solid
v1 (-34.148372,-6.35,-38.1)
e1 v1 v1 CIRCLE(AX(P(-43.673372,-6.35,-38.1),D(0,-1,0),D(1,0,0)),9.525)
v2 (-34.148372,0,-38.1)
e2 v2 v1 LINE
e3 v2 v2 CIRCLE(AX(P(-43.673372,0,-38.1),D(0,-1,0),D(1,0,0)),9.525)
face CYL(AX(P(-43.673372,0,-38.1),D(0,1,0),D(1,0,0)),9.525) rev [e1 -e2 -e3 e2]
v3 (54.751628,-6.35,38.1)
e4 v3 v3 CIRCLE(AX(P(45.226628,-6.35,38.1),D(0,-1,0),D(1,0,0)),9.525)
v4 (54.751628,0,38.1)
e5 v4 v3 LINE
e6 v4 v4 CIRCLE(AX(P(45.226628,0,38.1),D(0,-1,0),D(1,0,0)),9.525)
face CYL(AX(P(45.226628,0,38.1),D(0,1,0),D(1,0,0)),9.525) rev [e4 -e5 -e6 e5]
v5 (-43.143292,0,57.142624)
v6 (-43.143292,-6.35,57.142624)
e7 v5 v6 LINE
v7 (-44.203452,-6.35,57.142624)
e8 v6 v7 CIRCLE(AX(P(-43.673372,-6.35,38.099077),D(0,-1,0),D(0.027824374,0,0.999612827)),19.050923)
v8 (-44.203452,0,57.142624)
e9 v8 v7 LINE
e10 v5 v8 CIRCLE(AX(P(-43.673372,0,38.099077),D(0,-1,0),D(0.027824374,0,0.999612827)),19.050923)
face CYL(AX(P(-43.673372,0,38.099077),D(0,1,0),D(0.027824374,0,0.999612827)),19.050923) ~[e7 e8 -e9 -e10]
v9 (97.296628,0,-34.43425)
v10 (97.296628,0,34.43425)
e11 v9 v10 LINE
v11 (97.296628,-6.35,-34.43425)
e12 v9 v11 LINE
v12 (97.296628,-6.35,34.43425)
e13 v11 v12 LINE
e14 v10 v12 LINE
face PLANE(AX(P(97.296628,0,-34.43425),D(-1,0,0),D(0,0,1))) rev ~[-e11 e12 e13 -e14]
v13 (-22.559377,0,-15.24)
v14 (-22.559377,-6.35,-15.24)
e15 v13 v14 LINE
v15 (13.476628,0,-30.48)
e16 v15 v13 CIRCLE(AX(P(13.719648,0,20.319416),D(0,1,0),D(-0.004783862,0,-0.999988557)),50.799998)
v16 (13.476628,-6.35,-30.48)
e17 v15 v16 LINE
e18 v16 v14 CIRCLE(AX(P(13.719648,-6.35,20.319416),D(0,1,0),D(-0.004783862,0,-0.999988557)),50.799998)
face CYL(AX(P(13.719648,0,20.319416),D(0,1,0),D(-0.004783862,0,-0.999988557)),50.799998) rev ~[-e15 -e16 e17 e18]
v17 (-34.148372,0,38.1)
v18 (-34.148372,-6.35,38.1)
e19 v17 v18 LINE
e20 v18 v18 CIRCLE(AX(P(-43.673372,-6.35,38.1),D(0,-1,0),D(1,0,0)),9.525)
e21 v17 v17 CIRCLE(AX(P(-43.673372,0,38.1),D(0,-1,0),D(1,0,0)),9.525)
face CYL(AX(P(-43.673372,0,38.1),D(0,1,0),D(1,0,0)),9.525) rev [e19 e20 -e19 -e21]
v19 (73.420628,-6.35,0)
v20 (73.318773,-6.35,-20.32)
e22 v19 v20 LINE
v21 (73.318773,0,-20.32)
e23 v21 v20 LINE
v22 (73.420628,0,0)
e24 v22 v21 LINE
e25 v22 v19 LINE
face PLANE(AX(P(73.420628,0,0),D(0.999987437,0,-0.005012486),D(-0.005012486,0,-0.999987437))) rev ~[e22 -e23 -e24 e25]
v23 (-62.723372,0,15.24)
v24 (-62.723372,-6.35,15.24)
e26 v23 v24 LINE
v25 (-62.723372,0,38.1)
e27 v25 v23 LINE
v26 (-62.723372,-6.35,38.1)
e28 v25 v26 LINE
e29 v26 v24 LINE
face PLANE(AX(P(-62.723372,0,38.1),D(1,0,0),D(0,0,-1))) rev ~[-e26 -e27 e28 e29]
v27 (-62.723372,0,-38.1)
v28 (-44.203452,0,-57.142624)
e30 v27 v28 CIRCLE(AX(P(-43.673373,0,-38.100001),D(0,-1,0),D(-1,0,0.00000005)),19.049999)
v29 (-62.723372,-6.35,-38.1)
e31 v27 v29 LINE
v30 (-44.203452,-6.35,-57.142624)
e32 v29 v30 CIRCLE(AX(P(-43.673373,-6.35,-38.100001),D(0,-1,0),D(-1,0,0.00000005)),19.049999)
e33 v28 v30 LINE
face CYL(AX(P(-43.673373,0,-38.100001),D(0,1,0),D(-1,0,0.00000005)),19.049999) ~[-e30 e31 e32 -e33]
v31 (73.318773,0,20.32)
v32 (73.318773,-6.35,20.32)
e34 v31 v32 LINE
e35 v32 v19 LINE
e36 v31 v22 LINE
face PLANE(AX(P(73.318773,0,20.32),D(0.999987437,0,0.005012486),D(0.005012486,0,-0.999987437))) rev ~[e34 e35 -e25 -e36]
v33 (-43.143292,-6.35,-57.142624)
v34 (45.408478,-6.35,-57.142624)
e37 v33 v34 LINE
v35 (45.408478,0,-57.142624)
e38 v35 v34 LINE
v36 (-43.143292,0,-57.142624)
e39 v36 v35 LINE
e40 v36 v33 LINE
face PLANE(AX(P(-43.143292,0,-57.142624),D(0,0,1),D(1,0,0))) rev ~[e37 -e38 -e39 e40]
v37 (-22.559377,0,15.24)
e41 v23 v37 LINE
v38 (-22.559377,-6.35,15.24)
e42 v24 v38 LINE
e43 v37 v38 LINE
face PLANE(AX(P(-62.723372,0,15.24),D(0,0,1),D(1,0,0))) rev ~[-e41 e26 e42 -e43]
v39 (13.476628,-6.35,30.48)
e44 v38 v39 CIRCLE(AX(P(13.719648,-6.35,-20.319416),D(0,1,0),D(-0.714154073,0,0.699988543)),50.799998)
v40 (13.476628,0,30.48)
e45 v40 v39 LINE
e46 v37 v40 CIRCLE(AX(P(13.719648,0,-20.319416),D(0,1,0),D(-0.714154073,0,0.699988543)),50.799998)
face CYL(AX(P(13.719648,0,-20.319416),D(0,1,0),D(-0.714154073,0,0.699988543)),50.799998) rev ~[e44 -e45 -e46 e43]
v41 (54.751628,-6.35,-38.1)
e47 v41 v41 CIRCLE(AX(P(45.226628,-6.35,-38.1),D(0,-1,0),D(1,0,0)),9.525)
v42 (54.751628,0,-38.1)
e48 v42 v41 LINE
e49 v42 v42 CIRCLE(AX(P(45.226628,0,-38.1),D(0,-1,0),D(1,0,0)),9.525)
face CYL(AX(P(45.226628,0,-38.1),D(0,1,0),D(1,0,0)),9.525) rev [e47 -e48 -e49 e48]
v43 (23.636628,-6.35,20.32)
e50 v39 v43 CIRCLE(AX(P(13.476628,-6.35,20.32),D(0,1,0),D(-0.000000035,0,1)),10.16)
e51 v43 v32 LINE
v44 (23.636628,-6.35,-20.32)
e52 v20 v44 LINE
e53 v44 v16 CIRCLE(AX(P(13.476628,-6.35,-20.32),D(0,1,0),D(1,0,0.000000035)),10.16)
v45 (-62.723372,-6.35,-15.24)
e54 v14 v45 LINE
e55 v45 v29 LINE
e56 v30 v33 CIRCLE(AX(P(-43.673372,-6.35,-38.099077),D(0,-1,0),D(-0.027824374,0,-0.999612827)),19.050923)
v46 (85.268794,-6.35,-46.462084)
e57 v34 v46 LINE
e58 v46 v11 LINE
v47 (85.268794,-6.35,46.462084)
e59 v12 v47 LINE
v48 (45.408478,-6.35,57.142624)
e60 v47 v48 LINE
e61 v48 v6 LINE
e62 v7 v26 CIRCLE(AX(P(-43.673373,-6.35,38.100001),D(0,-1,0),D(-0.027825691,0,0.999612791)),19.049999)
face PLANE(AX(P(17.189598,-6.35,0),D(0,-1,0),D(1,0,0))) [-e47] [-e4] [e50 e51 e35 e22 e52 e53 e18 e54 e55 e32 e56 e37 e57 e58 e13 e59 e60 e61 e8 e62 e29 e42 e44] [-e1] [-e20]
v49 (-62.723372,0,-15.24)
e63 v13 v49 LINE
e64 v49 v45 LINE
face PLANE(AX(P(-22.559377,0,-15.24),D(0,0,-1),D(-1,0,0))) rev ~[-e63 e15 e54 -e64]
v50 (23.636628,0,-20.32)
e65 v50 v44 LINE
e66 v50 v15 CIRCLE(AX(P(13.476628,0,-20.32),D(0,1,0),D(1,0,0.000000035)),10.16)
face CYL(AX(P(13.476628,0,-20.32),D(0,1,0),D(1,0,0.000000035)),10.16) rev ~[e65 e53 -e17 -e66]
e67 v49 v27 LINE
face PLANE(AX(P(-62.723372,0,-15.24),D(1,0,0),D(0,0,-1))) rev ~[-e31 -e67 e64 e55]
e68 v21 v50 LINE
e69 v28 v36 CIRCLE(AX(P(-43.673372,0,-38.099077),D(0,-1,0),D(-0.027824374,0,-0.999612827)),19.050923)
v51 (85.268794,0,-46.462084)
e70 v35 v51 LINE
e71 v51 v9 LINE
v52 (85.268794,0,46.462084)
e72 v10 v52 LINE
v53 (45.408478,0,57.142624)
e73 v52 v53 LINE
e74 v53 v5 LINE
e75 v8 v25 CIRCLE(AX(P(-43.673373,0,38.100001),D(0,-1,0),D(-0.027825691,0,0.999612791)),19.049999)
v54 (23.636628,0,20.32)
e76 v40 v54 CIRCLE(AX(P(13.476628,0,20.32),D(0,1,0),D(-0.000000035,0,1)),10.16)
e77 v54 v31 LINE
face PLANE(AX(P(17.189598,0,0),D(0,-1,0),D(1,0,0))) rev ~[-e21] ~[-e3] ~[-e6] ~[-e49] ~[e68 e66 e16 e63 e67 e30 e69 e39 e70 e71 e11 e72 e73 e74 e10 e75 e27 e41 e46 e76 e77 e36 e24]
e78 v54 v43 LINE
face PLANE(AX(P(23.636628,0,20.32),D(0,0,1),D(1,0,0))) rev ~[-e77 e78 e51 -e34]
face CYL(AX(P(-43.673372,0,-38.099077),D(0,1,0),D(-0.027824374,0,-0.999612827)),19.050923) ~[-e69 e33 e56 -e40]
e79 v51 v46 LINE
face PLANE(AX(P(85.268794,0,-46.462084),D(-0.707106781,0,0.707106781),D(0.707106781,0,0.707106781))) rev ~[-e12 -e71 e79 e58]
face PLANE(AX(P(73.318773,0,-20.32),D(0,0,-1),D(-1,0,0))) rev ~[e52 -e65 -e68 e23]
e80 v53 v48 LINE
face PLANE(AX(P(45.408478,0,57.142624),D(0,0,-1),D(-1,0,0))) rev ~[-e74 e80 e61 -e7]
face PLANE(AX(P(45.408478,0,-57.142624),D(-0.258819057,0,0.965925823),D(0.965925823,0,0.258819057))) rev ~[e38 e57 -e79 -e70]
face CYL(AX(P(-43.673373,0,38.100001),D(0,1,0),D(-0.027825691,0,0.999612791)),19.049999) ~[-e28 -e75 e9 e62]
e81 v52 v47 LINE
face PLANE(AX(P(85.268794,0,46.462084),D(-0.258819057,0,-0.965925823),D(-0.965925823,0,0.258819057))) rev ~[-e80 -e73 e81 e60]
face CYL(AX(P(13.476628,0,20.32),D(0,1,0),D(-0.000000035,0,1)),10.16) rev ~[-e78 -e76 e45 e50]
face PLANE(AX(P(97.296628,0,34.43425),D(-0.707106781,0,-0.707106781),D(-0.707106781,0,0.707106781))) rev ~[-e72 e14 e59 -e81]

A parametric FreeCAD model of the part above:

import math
import FreeCAD as App
import Part
import Sketcher
from FreeCAD import Vector
Q = App.Units.Quantity

doc = App.newDocument("Part")
body = doc.addObject("PartDesign::Body", "Body")

sketch1 = body.newObject("Sketcher::SketchObject", "Sketch")
sketch1.AttachmentSupport = (doc.getObject("XZ_Plane"), [""])
sketch1.MapMode = "FlatFace"
sketch1.addGeometry([
    Part.ArcOfCircle(Part.Circle(Vector(-43.673373, 38.100001, 0), Vector(0, 0, 1), 19.049999), math.radians(91.5945), math.radians(180.000003)),
    Part.LineSegment(Vector(-62.723372, 38.1, 0), Vector(-62.723372, 15.24, 0)),
    Part.LineSegment(Vector(-62.723372, 15.24, 0), Vector(-22.559377, 15.24, 0)),
    Part.ArcOfCircle(Part.Circle(Vector(13.719648, -20.319416, 0), Vector(0, 0, 1), 50.799998), math.radians(90.274096), math.radians(135.573915)),
    Part.ArcOfCircle(Part.Circle(Vector(13.476628, 20.32, 0), Vector(0, 0, 1), 10.16), math.radians(-0.000002), math.radians(90.000002)),
    Part.LineSegment(Vector(23.636628, 20.32, 0), Vector(73.318773, 20.32, 0)),
    Part.LineSegment(Vector(73.318773, 20.32, 0), Vector(73.420628, 0, 0)),
    Part.LineSegment(Vector(73.420628, 0, 0), Vector(73.318773, -20.32, 0)),
    Part.LineSegment(Vector(73.318773, -20.32, 0), Vector(23.636628, -20.32, 0)),
    Part.ArcOfCircle(Part.Circle(Vector(13.476628, -20.32, 0), Vector(0, 0, 1), 10.16), math.radians(-90.000002), math.radians(0.000002)),
    Part.ArcOfCircle(Part.Circle(Vector(13.719648, 20.319416, 0), Vector(0, 0, 1), 50.799998), math.radians(-135.573915), math.radians(-90.274096)),
    Part.LineSegment(Vector(-22.559377, -15.24, 0), Vector(-62.723372, -15.24, 0)),
    Part.LineSegment(Vector(-62.723372, -15.24, 0), Vector(-62.723372, -38.1, 0)),
    Part.ArcOfCircle(Part.Circle(Vector(-43.673373, -38.100001, 0), Vector(0, 0, 1), 19.049999), math.radians(179.999997), math.radians(268.4055)),
    Part.ArcOfCircle(Part.Circle(Vector(-43.673372, -38.099077, 0), Vector(0, 0, 1), 19.050923), math.radians(-91.594425), math.radians(-88.405575)),
    Part.LineSegment(Vector(-43.143292, -57.142624, 0), Vector(45.408478, -57.142624, 0)),
    Part.LineSegment(Vector(45.408478, -57.142624, 0), Vector(85.268794, -46.462084, 0)),
    Part.LineSegment(Vector(85.268794, -46.462084, 0), Vector(97.296628, -34.43425, 0)),
    Part.LineSegment(Vector(97.296628, -34.43425, 0), Vector(97.296628, 34.43425, 0)),
    Part.LineSegment(Vector(97.296628, 34.43425, 0), Vector(85.268794, 46.462084, 0)),
    Part.LineSegment(Vector(85.268794, 46.462084, 0), Vector(45.408478, 57.142624, 0)),
    Part.LineSegment(Vector(45.408478, 57.142624, 0), Vector(-43.143292, 57.142624, 0)),
    Part.ArcOfCircle(Part.Circle(Vector(-43.673372, 38.099077, 0), Vector(0, 0, 1), 19.050923), math.radians(88.405575), math.radians(91.594425)),
    Part.Circle(Vector(-43.673372, -38.1, 0), Vector(0, 0, 1), 9.525),
    Part.Circle(Vector(45.226628, -38.1, 0), Vector(0, 0, 1), 9.525),
    Part.Circle(Vector(-43.673372, 38.1, 0), Vector(0, 0, 1), 9.525),
    Part.Circle(Vector(45.226628, 38.1, 0), Vector(0, 0, 1), 9.525),
], False)
sketch1.addConstraint([
    Sketcher.Constraint("Coincident", 0, 2, 1, 1),
    Sketcher.Constraint("Coincident", 1, 2, 2, 1),
    Sketcher.Constraint("Coincident", 2, 2, 3, 2),
    Sketcher.Constraint("Coincident", 3, 1, 4, 2),
    Sketcher.Constraint("Coincident", 4, 1, 5, 1),
    Sketcher.Constraint("Coincident", 5, 2, 6, 1),
    Sketcher.Constraint("Coincident", 6, 2, 7, 1),
    Sketcher.Constraint("Coincident", 7, 2, 8, 1),
    Sketcher.Constraint("Coincident", 8, 2, 9, 2),
    Sketcher.Constraint("Coincident", 9, 1, 10, 2),
    Sketcher.Constraint("Coincident", 10, 1, 11, 1),
    Sketcher.Constraint("Coincident", 11, 2, 12, 1),
    Sketcher.Constraint("Coincident", 12, 2, 13, 1),
    Sketcher.Constraint("Coincident", 13, 2, 14, 1),
    Sketcher.Constraint("Coincident", 14, 2, 15, 1),
    Sketcher.Constraint("Coincident", 15, 2, 16, 1),
    Sketcher.Constraint("Coincident", 16, 2, 17, 1),
    Sketcher.Constraint("Coincident", 17, 2, 18, 1),
    Sketcher.Constraint("Coincident", 18, 2, 19, 1),
    Sketcher.Constraint("Coincident", 19, 2, 20, 1),
    Sketcher.Constraint("Coincident", 20, 2, 21, 1),
    Sketcher.Constraint("Coincident", 21, 2, 22, 1),
    Sketcher.Constraint("Coincident", 22, 2, 0, 1),
    Sketcher.Constraint("Vertical", 1),
    Sketcher.Constraint("Horizontal", 2),
    Sketcher.Constraint("Horizontal", 5),
    Sketcher.Constraint("Horizontal", 8),
    Sketcher.Constraint("Horizontal", 11),
    Sketcher.Constraint("Vertical", 12),
    Sketcher.Constraint("Horizontal", 15),
    Sketcher.Constraint("Vertical", 18),
    Sketcher.Constraint("Horizontal", 21),
    Sketcher.Constraint("Coincident", 23, 3, 13, 3),
    Sketcher.Constraint("Coincident", 25, 3, 0, 3),
    Sketcher.Constraint("PointOnObject", 6, 2, -1),
    Sketcher.Constraint("Radius", 3, Q("1.9999999 in")),
    Sketcher.Constraint("Radius", 10, Q("1.9999999 in")),
    Sketcher.Constraint("Radius", 4, Q("0.4 in")),
    Sketcher.Constraint("Radius", 9, Q("0.4 in")),
    Sketcher.Constraint("Diameter", 23, Q("0.75 in")),
    Sketcher.Constraint("Diameter", 24, Q("0.75 in")),
    Sketcher.Constraint("Diameter", 25, Q("0.75 in")),
    Sketcher.Constraint("Diameter", 26, Q("0.75 in")),
    Sketcher.Constraint("Radius", 0, Q("0.75 in")),
    Sketcher.Constraint("Radius", 13, Q("0.75 in")),
    Sketcher.Constraint("DistanceY", 1, 2, 1, 1, Q("0.9 in")),
    Sketcher.Constraint("DistanceY", 12, 2, 12, 1, Q("0.9 in")),
    Sketcher.Constraint("DistanceY", 13, 3, 0, 3, Q("3.0000001 in")),
    Sketcher.Constraint("DistanceY", 24, 3, 26, 3, Q("3 in")),
    Sketcher.Constraint("DistanceX", 0, 2, 4, 3, Q("3 in")),
    Sketcher.Constraint("DistanceY", -1, 1, 0, 3, Q("1.5 in")),
    Sketcher.Constraint("DistanceY", -1, 1, 4, 3, Q("0.8 in")),
    Sketcher.Constraint("DistanceY", 9, 3, -1, 1, Q("0.8 in")),
    Sketcher.Constraint("DistanceY", 24, 3, -1, 1, Q("1.5 in")),
    Sketcher.Constraint("DistanceY", -1, 1, 0, 2, Q("1.5 in")),
    Sketcher.Constraint("DistanceY", -1, 1, 4, 1, Q("0.8 in")),
    Sketcher.Constraint("DistanceY", 7, 2, -1, 1, Q("0.8 in")),
    Sketcher.Constraint("DistanceY", 10, 1, -1, 1, Q("0.6 in")),
    Sketcher.Constraint("DistanceX", 23, 3, 24, 3, Q("3.5 in")),
    Sketcher.Constraint("DistanceX", 3, 1, 4, 1, Q("0.4 in")),
    Sketcher.Constraint("DistanceX", 9, 1, 8, 2, Q("0.4 in")),
    Sketcher.Constraint("DistanceX", 0, 3, 9, 3, Q("2.25 in")),
    Sketcher.Constraint("DistanceX", 13, 3, 9, 3, Q("2.25 in")),
    Sketcher.Constraint("DistanceX", 14, 3, 9, 3, Q("2.25 in")),
    Sketcher.Constraint("DistanceX", 22, 3, 4, 3, Q("2.25 in")),
    Sketcher.Constraint("DistanceX", 4, 3, 26, 3, Q("1.25 in")),
    Sketcher.Constraint("DistanceX", 24, 3, 6, 2, Q("1.11 in")),
    Sketcher.Constraint("DistanceX", 6, 2, 17, 2, Q("0.94 in")),
    Sketcher.Constraint("DistanceY", 18, 1, 18, 2, 68.8685),
    Sketcher.Constraint("Radius", 14, 19.050923),
    Sketcher.Constraint("Radius", 22, 19.050923),
    Sketcher.Constraint("DistanceX", 15, 1, 15, 2, 88.55177),
    Sketcher.Constraint("DistanceX", 21, 2, 21, 1, 88.55177),
    Sketcher.Constraint("DistanceX", 2, 1, 2, 2, 40.163995),
    Sketcher.Constraint("DistanceX", 5, 1, 5, 2, 49.682145),
    Sketcher.Constraint("DistanceX", 8, 2, 8, 1, 49.682145),
    Sketcher.Constraint("DistanceX", 11, 2, 11, 1, 40.163995),
    Sketcher.Constraint("DistanceX", -1, 1, 3, 3, 13.719648),
    Sketcher.Constraint("DistanceX", 13, 2, -1, 1, 44.203452),
    Sketcher.Constraint("DistanceX", -1, 1, 15, 2, 45.408478),
    Sketcher.Constraint("DistanceY", 17, 2, -1, 1, 34.43425),
    Sketcher.Constraint("DistanceX", -1, 1, 20, 2, 45.408478),
    Sketcher.Constraint("DistanceX", 7, 2, 16, 2, 11.950021),
    Sketcher.Constraint("DistanceY", 15, 2, 16, 2, 10.68054),
    Sketcher.Constraint("DistanceX", 5, 2, 19, 2, 11.950021),
    Sketcher.Constraint("DistanceY", 19, 2, 20, 2, 10.68054),
    Sketcher.Constraint("DistanceX", 22, 2, 21, 2, 1.06016),
])
pad1 = body.newObject("PartDesign::Pad", "Pad")
pad1.Profile = sketch1
pad1.Length = Q("0.25 in")

doc.recompute()
